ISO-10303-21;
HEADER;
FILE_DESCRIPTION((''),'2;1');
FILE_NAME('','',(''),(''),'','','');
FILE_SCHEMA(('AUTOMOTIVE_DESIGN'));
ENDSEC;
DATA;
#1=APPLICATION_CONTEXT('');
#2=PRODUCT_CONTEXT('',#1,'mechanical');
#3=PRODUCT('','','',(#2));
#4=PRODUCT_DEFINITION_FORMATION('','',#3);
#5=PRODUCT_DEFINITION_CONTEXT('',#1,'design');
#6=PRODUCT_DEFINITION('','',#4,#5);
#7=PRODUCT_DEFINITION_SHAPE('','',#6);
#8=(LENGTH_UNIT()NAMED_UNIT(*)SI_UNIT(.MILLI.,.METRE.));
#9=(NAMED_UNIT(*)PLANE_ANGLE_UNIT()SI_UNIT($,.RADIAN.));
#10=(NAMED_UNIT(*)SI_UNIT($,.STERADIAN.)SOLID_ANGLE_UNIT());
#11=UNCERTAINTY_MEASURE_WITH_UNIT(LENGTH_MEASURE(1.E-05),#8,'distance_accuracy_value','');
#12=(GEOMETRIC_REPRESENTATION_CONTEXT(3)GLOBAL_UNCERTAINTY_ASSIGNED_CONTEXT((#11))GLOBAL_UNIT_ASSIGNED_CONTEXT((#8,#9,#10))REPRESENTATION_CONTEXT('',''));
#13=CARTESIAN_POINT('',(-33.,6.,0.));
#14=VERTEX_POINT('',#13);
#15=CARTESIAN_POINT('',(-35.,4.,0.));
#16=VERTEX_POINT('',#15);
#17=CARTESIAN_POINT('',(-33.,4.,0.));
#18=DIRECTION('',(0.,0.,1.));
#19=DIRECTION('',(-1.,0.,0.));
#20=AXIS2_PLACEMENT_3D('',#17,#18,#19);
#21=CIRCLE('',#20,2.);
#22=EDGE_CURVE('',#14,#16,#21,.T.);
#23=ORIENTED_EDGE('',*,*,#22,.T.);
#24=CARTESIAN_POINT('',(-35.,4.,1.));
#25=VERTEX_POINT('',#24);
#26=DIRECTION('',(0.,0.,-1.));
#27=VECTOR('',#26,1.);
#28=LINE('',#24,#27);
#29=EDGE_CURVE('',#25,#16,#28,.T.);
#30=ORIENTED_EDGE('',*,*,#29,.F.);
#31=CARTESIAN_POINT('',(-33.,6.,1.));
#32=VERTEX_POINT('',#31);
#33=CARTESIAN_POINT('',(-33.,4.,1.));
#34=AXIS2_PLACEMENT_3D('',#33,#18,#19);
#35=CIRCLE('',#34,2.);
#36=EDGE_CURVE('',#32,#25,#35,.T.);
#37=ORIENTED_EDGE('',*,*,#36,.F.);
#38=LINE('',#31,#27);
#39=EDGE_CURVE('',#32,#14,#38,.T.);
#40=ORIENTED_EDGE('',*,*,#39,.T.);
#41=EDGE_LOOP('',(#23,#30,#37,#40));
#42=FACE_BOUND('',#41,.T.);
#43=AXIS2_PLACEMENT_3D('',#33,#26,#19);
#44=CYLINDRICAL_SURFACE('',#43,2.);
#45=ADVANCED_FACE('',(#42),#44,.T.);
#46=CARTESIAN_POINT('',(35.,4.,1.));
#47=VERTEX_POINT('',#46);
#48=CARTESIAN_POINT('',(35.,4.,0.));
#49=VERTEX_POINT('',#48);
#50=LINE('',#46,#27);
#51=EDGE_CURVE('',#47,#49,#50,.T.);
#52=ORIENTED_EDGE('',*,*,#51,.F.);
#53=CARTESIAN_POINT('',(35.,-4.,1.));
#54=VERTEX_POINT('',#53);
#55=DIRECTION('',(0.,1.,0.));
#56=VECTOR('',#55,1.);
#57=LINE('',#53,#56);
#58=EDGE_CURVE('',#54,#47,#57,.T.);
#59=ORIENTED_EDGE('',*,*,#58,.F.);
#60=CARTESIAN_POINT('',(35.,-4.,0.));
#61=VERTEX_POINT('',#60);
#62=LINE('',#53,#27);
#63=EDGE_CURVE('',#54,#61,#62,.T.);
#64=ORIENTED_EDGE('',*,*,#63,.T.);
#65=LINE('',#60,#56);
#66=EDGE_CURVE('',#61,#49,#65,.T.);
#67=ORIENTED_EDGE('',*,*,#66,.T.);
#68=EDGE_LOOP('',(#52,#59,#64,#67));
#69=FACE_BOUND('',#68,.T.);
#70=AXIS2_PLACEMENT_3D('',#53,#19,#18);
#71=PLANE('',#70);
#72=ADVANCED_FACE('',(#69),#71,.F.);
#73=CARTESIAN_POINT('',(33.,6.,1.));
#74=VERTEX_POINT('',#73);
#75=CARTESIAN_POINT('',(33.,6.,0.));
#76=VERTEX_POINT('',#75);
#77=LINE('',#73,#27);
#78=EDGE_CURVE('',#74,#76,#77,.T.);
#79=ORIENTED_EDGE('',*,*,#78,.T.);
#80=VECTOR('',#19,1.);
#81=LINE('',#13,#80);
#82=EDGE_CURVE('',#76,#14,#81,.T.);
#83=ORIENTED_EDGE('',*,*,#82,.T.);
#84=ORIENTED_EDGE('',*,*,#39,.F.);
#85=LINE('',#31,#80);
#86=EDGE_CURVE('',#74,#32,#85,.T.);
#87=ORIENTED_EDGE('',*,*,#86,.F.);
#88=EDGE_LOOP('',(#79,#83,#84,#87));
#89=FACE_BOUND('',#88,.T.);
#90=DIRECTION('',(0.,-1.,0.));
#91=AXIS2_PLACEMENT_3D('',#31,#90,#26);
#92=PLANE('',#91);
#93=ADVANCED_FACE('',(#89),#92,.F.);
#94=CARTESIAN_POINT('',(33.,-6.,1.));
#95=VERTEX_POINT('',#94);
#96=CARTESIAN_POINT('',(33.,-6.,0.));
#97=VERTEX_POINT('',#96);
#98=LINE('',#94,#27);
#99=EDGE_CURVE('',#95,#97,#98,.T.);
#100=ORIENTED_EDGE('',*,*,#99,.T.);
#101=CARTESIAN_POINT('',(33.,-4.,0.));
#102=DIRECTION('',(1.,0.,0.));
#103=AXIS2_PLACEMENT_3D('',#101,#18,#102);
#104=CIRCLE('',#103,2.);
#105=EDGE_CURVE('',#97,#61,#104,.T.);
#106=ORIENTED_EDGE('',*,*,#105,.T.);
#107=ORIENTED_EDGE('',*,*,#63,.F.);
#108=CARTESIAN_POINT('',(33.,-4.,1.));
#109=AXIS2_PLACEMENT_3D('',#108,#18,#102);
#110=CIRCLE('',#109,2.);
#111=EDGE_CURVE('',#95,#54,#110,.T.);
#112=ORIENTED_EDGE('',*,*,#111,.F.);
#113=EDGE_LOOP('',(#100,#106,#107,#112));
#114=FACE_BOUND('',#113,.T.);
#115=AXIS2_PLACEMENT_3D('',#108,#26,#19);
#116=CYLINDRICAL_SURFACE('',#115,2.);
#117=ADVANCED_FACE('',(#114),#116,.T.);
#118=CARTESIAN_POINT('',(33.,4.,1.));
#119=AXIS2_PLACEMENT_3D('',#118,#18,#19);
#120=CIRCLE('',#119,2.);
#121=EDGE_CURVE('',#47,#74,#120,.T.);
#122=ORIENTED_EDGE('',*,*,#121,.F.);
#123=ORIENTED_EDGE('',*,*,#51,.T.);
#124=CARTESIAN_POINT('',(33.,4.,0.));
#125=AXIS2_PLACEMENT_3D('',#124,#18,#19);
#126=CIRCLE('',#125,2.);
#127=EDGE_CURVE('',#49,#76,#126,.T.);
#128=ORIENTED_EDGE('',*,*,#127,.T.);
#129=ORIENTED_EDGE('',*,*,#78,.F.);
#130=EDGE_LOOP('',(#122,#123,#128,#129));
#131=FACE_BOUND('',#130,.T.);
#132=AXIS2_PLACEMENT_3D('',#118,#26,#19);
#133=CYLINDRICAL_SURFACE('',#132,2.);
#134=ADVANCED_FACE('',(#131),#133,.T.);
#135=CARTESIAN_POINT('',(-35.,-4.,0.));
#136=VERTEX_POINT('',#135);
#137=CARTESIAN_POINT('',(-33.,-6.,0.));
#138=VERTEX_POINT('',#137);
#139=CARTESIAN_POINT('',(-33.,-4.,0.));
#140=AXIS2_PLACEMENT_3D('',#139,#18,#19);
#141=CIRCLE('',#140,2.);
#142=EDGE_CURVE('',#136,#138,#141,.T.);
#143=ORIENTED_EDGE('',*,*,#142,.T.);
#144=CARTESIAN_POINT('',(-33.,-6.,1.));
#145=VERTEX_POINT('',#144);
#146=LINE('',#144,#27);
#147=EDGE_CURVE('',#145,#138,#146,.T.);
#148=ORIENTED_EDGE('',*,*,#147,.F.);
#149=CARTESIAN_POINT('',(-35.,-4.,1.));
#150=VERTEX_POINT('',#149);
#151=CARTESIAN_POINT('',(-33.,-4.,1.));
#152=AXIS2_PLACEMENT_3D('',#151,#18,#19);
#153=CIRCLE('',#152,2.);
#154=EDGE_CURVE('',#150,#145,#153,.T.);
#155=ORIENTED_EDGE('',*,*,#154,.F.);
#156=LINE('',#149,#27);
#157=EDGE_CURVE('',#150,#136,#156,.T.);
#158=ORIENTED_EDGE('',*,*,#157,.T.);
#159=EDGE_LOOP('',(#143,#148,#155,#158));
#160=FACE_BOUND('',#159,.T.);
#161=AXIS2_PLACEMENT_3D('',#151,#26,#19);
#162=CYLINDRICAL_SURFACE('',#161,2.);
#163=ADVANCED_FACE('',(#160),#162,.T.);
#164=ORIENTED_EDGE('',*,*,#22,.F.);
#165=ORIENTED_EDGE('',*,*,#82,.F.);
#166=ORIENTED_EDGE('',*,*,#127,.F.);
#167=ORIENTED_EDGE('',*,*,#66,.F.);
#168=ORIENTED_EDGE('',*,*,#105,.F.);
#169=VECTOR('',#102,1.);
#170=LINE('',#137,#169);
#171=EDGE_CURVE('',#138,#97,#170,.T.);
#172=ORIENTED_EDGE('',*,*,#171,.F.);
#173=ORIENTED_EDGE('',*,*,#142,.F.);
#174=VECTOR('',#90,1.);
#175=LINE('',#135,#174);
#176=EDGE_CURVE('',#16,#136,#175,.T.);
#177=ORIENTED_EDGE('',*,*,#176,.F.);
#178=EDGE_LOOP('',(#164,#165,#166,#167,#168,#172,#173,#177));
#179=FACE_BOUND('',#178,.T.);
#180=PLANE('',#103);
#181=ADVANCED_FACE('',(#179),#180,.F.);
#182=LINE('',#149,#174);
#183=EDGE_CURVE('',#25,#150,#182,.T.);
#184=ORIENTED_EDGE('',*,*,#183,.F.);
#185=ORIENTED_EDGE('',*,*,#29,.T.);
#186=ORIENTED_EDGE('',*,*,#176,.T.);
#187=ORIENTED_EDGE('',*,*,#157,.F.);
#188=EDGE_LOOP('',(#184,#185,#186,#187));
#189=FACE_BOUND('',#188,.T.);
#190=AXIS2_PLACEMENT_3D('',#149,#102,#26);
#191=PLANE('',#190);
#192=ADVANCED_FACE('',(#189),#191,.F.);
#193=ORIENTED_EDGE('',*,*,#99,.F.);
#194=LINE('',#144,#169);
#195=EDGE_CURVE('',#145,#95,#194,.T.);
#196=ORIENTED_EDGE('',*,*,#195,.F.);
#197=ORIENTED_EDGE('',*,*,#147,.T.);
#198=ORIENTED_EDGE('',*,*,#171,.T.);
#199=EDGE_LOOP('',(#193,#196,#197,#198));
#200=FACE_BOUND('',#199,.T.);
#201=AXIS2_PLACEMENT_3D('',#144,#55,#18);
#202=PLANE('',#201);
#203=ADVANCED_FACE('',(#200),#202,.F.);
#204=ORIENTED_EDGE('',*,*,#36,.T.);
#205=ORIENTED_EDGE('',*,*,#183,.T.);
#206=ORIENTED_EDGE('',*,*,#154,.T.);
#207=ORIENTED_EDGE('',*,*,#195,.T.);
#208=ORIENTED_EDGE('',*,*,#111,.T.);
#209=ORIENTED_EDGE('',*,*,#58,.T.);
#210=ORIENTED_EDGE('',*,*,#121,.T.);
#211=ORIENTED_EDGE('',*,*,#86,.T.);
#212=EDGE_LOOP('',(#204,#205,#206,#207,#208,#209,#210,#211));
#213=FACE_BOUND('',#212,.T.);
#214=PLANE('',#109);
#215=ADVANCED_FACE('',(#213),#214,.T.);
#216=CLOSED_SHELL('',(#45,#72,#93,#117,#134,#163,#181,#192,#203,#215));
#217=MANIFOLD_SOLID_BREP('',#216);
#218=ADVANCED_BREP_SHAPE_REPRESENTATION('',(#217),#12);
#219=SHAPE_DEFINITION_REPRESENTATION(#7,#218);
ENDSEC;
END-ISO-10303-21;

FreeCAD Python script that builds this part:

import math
import FreeCAD as App
import Part
import Sketcher
from FreeCAD import Vector
Q = App.Units.Quantity

doc = App.newDocument("Part")
body = doc.addObject("PartDesign::Body", "Body")

sketch1 = body.newObject("Sketcher::SketchObject", "Sketch")
sketch1.AttachmentSupport = (doc.getObject("XY_Plane"), [""])
sketch1.MapMode = "FlatFace"
sketch1.addGeometry([
    Part.LineSegment(Vector(-33, -6, 0), Vector(33, -6, 0)),
    Part.ArcOfCircle(Part.Circle(Vector(33, -4, 0), Vector(0, 0, 1), 2), math.radians(-90), math.radians(0)),
    Part.LineSegment(Vector(35, -4, 0), Vector(35, 4, 0)),
    Part.ArcOfCircle(Part.Circle(Vector(33, 4, 0), Vector(0, 0, 1), 2), math.radians(0), math.radians(90)),
    Part.LineSegment(Vector(33, 6, 0), Vector(-33, 6, 0)),
    Part.ArcOfCircle(Part.Circle(Vector(-33, 4, 0), Vector(0, 0, 1), 2), math.radians(90), math.radians(180)),
    Part.LineSegment(Vector(-35, 4, 0), Vector(-35, -4, 0)),
    Part.ArcOfCircle(Part.Circle(Vector(-33, -4, 0), Vector(0, 0, 1), 2), math.radians(-180), math.radians(-90)),
], False)
sketch1.addConstraint([
    Sketcher.Constraint("Tangent", 0, 2, 1, 1),
    Sketcher.Constraint("Tangent", 1, 2, 2, 1),
    Sketcher.Constraint("Tangent", 2, 2, 3, 1),
    Sketcher.Constraint("Tangent", 3, 2, 4, 1),
    Sketcher.Constraint("Tangent", 4, 2, 5, 1),
    Sketcher.Constraint("Tangent", 5, 2, 6, 1),
    Sketcher.Constraint("Tangent", 6, 2, 7, 1),
    Sketcher.Constraint("Tangent", 7, 2, 0, 1),
    Sketcher.Constraint("Horizontal", 0),
    Sketcher.Constraint("Vertical", 2),
    Sketcher.Constraint("Horizontal", 4),
    Sketcher.Constraint("Vertical", 6),
    Sketcher.Constraint("Equal", 1, 3),
    Sketcher.Constraint("Equal", 3, 5),
    Sketcher.Constraint("Equal", 5, 7),
    Sketcher.Constraint("Symmetric", 1, 3, 5, 3, -1, 1),
    Sketcher.Constraint("Radius", 1, Q("2 mm")),
    Sketcher.Constraint("DistanceX", 0, 1, 0, 2, Q("66 mm")),
    Sketcher.Constraint("DistanceY", 2, 1, 2, 2, Q("8 mm")),
])
pad1 = body.newObject("PartDesign::Pad", "Pad")
pad1.Profile = sketch1
pad1.Length = 1

doc.recompute()
